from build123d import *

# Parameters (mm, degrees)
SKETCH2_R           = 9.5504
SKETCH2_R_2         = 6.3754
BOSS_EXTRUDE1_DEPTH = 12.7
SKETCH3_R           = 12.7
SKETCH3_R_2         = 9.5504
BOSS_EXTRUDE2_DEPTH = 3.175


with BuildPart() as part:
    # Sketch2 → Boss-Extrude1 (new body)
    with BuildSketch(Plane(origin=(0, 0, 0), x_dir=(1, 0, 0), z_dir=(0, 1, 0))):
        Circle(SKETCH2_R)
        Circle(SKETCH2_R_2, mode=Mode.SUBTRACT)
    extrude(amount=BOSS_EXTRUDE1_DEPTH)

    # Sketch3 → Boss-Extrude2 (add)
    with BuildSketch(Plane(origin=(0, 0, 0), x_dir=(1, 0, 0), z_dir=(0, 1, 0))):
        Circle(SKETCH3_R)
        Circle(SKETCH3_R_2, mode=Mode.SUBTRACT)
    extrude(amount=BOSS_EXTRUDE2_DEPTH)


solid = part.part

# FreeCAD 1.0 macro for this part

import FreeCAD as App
import Part
import Sketcher
Q = App.Units.Quantity

doc = App.newDocument("Part")
body = doc.addObject("PartDesign::Body", "Body")

# Sketch on XZ plane
sketch1 = doc.addObject("Sketcher::SketchObject", "Sketch")
body.addObject(sketch1)
sketch1.AttachmentSupport = (doc.XZ_Plane, [""])
sketch1.MapMode = "FlatFace"
sketch1.addGeometry(Part.Circle(App.Vector(0, 0, 0), App.Vector(0, 0, 1), 10), False)
sketch1.addGeometry(Part.Circle(App.Vector(0, 0, 0), App.Vector(0, 0, 1), 6), False)
sketch1.addConstraint(Sketcher.Constraint("Coincident", 0, 3, -1, 1))
sketch1.addConstraint(Sketcher.Constraint("Coincident", 1, 3, -1, 1))
sketch1.addConstraint(Sketcher.Constraint("Diameter", 0, Q("0.752 in")))
sketch1.addConstraint(Sketcher.Constraint("Diameter", 1, Q("0.502 in")))
pad1 = doc.addObject("PartDesign::Pad", "Pad")
body.addObject(pad1)
pad1.Profile = sketch1
pad1.Length = Q("0.5 in")
pad1.Reversed = True

# Sketch on XZ plane
sketch2 = doc.addObject("Sketcher::SketchObject", "Sketch001")
body.addObject(sketch2)
sketch2.AttachmentSupport = (doc.XZ_Plane, [""])
sketch2.MapMode = "FlatFace"
sketch2.addGeometry(Part.Circle(App.Vector(0, 0, 0), App.Vector(0, 0, 1), 13), False)
sketch2.addGeometry(Part.Circle(App.Vector(0, 0, 0), App.Vector(0, 0, 1), 10), False)
sketch2.addConstraint(Sketcher.Constraint("Coincident", 0, 3, -1, 1))
sketch2.addConstraint(Sketcher.Constraint("Coincident", 1, 3, -1, 1))
sketch2.addConstraint(Sketcher.Constraint("Diameter", 0, Q("1 in")))
sketch2.addConstraint(Sketcher.Constraint("Diameter", 1, Q("0.752 in")))
pad2 = doc.addObject("PartDesign::Pad", "Pad001")
body.addObject(pad2)
pad2.Profile = sketch2
pad2.Length = Q("0.125 in")
pad2.Reversed = True

doc.recompute()
